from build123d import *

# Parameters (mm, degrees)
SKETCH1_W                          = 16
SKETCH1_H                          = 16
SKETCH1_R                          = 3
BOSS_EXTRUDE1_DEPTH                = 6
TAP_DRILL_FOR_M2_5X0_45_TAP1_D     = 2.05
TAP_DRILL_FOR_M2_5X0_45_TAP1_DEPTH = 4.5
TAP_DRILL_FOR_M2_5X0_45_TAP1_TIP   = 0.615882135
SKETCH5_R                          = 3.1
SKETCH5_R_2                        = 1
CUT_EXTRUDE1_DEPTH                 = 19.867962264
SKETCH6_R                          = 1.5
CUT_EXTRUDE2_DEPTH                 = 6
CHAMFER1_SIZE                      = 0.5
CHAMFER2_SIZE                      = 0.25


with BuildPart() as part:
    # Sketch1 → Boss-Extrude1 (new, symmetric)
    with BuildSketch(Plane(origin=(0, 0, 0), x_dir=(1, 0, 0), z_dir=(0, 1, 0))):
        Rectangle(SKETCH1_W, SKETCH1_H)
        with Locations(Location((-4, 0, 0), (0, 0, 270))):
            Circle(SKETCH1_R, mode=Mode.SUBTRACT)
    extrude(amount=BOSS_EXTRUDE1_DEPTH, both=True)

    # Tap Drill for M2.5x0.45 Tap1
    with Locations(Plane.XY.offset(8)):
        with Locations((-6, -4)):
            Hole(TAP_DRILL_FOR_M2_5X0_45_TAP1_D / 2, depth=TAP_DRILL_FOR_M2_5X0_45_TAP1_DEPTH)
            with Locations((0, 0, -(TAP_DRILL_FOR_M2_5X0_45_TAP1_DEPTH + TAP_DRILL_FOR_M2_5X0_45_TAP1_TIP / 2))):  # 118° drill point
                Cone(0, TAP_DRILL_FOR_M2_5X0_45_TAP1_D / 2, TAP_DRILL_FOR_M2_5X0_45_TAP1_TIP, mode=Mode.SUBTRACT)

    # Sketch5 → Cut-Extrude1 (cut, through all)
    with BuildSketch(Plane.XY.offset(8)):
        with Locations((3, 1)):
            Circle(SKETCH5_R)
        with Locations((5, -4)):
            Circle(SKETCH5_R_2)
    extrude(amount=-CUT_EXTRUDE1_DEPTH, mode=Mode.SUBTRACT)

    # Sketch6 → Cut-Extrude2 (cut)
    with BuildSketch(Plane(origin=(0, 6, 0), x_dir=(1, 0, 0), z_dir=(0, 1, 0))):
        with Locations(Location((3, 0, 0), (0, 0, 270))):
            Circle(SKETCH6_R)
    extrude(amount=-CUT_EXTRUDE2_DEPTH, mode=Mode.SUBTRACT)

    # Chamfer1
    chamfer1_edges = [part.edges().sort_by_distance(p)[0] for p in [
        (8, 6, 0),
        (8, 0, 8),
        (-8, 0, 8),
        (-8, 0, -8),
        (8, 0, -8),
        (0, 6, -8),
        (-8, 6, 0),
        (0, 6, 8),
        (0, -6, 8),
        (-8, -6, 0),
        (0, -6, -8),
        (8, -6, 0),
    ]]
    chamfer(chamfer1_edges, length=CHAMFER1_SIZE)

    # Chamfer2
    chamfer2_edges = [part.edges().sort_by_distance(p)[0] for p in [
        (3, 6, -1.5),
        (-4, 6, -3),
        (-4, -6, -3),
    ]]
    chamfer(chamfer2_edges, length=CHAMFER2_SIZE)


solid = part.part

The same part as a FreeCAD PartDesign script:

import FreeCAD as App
import Part
import Sketcher


def edges_at(feature, points):
    """Names of the edges that pass closest to the given points."""
    edges = feature.Shape.Edges
    near = lambda p: min(range(len(edges)), key=lambda i: edges[i].distToShape(Part.Vertex(*p))[0])
    return sorted({f"Edge{near(p) + 1}" for p in points})


def add_polygon(sketch, points):
    """Adds a closed chain of lines whose ends are joined by coincident constraints."""
    first, n = sketch.GeometryCount, len(points)
    for a, b in zip(points, points[1:] + points[:1]):
        sketch.addGeometry(Part.LineSegment(App.Vector(*a, 0), App.Vector(*b, 0)), False)
    for i in range(n):
        sketch.addConstraint(Sketcher.Constraint("Coincident", first + i, 2, first + (i + 1) % n, 1))

doc = App.newDocument("Part")
body = doc.addObject("PartDesign::Body", "Body")

# Sketch on XZ plane
sketch1 = body.newObject("Sketcher::SketchObject", "Sketch")
sketch1.AttachmentSupport = (doc.getObject("XZ_Plane"), [""])
sketch1.MapMode = "FlatFace"
add_polygon(sketch1, [(-8, -8), (-8, 8), (8, 8), (8, -8)])  # lines 0-3
sketch1.addGeometry(Part.Circle(App.Vector(-4, 0, 0), App.Vector(0, 0, 1), 3), False)  # 4
sketch1.addConstraint(Sketcher.Constraint("Vertical", 0))
sketch1.addConstraint(Sketcher.Constraint("Horizontal", 1))
sketch1.addConstraint(Sketcher.Constraint("Vertical", 2))
sketch1.addConstraint(Sketcher.Constraint("Horizontal", 3))
sketch1.addConstraint(Sketcher.Constraint("Symmetric", 0, 2, 2, 2, -1, 1))
sketch1.addConstraint(Sketcher.Constraint("PointOnObject", 4, 3, -1))
sketch1.addConstraint(Sketcher.Constraint("Equal", 3, 0))
sketch1.addConstraint(Sketcher.Constraint("Diameter", 4, 6.0))
sketch1.addConstraint(Sketcher.Constraint("DistanceX", 1, 1, 1, 2, 16.0))
sketch1.addConstraint(Sketcher.Constraint("DistanceX", 4, 3, -1, 1, 4.0))
pad1 = body.newObject("PartDesign::Pad", "Pad")
pad1.Profile = sketch1
pad1.Length = 12
pad1.Midplane = True

# Sketch on XY plane
sketch2 = body.newObject("Sketcher::SketchObject", "Sketch001")
sketch2.AttachmentSupport = (doc.getObject("XY_Plane"), [""])
sketch2.MapMode = "FlatFace"
sketch2.AttachmentOffset = App.Placement(App.Vector(0, 0, 8), App.Rotation())
sketch2.addGeometry(Part.Circle(App.Vector(-6, -4, 0), App.Vector(0, 0, 1), 1), False)
sketch2.addConstraint(Sketcher.Constraint("Diameter", 0, 2.05))
sketch2.addConstraint(Sketcher.Constraint("DistanceX", 0, 3, -1, 1, 6.0))
sketch2.addConstraint(Sketcher.Constraint("DistanceY", 0, 3, -1, 1, 4.0))
doc.recompute()
hole = body.newObject("PartDesign::Hole", "Hole")
hole.Profile = sketch2
hole.ThreadType = "None"
hole.Diameter = 2.05
hole.DepthType = "Dimension"
hole.Depth = 4.5
hole.DrillPoint = "Angled"
hole.DrillPointAngle = 118

# Sketch on XY plane
sketch3 = body.newObject("Sketcher::SketchObject", "Sketch002")
sketch3.AttachmentSupport = (doc.getObject("XY_Plane"), [""])
sketch3.MapMode = "FlatFace"
sketch3.AttachmentOffset = App.Placement(App.Vector(0, 0, 8), App.Rotation())
sketch3.addGeometry(Part.Circle(App.Vector(3, 1, 0), App.Vector(0, 0, 1), 3.1), False)
sketch3.addGeometry(Part.Circle(App.Vector(5, -4, 0), App.Vector(0, 0, 1), 1), False)
sketch3.addConstraint(Sketcher.Constraint("Diameter", 1, 2.0))
sketch3.addConstraint(Sketcher.Constraint("Diameter", 0, 6.2))
sketch3.addConstraint(Sketcher.Constraint("DistanceX", -1, 1, 0, 3, 3.0))
sketch3.addConstraint(Sketcher.Constraint("DistanceY", -1, 1, 0, 3, 1.0))
sketch3.addConstraint(Sketcher.Constraint("DistanceX", -1, 1, 1, 3, 5.0))
sketch3.addConstraint(Sketcher.Constraint("DistanceY", 1, 3, -1, 1, 4.0))
pocket1 = body.newObject("PartDesign::Pocket", "Pocket")
pocket1.Profile = sketch3
pocket1.Type = "ThroughAll"

# Sketch on XZ plane
sketch4 = body.newObject("Sketcher::SketchObject", "Sketch003")
sketch4.AttachmentSupport = (doc.getObject("XZ_Plane"), [""])
sketch4.MapMode = "FlatFace"
sketch4.AttachmentOffset = App.Placement(App.Vector(0, 0, -6), App.Rotation())
sketch4.addGeometry(Part.Circle(App.Vector(3, 0, 0), App.Vector(0, 0, 1), 1.5), False)
sketch4.addConstraint(Sketcher.Constraint("PointOnObject", 0, 3, -1))
sketch4.addConstraint(Sketcher.Constraint("Diameter", 0, 3.0))
sketch4.addConstraint(Sketcher.Constraint("DistanceX", -1, 1, 0, 3, 3.0))
pocket2 = body.newObject("PartDesign::Pocket", "Pocket001")
pocket2.Profile = sketch4
pocket2.Length = 6
pocket2.Reversed = True
doc.recompute()

chamfer = body.newObject("PartDesign::Chamfer", "Chamfer")
chamfer.Base = (pocket2, edges_at(pocket2, [
    (8, 6, 0),
    (8, 0, 8),
    (-8, 0, 8),
    (-8, 0, -8),
    (8, 0, -8),
    (0, 6, -8),
    (-8, 6, 0),
    (0, 6, 8),
    (0, -6, 8),
    (-8, -6, 0),
    (0, -6, -8),
    (8, -6, 0),
]))
chamfer.Size = 0.5
doc.recompute()

chamfer2 = body.newObject("PartDesign::Chamfer", "Chamfer001")
chamfer2.Base = (chamfer, edges_at(chamfer, [(3, 6, -1.5), (-4, 6, -3), (-4, -6, -3)]))
chamfer2.Size = 0.25

doc.recompute()
